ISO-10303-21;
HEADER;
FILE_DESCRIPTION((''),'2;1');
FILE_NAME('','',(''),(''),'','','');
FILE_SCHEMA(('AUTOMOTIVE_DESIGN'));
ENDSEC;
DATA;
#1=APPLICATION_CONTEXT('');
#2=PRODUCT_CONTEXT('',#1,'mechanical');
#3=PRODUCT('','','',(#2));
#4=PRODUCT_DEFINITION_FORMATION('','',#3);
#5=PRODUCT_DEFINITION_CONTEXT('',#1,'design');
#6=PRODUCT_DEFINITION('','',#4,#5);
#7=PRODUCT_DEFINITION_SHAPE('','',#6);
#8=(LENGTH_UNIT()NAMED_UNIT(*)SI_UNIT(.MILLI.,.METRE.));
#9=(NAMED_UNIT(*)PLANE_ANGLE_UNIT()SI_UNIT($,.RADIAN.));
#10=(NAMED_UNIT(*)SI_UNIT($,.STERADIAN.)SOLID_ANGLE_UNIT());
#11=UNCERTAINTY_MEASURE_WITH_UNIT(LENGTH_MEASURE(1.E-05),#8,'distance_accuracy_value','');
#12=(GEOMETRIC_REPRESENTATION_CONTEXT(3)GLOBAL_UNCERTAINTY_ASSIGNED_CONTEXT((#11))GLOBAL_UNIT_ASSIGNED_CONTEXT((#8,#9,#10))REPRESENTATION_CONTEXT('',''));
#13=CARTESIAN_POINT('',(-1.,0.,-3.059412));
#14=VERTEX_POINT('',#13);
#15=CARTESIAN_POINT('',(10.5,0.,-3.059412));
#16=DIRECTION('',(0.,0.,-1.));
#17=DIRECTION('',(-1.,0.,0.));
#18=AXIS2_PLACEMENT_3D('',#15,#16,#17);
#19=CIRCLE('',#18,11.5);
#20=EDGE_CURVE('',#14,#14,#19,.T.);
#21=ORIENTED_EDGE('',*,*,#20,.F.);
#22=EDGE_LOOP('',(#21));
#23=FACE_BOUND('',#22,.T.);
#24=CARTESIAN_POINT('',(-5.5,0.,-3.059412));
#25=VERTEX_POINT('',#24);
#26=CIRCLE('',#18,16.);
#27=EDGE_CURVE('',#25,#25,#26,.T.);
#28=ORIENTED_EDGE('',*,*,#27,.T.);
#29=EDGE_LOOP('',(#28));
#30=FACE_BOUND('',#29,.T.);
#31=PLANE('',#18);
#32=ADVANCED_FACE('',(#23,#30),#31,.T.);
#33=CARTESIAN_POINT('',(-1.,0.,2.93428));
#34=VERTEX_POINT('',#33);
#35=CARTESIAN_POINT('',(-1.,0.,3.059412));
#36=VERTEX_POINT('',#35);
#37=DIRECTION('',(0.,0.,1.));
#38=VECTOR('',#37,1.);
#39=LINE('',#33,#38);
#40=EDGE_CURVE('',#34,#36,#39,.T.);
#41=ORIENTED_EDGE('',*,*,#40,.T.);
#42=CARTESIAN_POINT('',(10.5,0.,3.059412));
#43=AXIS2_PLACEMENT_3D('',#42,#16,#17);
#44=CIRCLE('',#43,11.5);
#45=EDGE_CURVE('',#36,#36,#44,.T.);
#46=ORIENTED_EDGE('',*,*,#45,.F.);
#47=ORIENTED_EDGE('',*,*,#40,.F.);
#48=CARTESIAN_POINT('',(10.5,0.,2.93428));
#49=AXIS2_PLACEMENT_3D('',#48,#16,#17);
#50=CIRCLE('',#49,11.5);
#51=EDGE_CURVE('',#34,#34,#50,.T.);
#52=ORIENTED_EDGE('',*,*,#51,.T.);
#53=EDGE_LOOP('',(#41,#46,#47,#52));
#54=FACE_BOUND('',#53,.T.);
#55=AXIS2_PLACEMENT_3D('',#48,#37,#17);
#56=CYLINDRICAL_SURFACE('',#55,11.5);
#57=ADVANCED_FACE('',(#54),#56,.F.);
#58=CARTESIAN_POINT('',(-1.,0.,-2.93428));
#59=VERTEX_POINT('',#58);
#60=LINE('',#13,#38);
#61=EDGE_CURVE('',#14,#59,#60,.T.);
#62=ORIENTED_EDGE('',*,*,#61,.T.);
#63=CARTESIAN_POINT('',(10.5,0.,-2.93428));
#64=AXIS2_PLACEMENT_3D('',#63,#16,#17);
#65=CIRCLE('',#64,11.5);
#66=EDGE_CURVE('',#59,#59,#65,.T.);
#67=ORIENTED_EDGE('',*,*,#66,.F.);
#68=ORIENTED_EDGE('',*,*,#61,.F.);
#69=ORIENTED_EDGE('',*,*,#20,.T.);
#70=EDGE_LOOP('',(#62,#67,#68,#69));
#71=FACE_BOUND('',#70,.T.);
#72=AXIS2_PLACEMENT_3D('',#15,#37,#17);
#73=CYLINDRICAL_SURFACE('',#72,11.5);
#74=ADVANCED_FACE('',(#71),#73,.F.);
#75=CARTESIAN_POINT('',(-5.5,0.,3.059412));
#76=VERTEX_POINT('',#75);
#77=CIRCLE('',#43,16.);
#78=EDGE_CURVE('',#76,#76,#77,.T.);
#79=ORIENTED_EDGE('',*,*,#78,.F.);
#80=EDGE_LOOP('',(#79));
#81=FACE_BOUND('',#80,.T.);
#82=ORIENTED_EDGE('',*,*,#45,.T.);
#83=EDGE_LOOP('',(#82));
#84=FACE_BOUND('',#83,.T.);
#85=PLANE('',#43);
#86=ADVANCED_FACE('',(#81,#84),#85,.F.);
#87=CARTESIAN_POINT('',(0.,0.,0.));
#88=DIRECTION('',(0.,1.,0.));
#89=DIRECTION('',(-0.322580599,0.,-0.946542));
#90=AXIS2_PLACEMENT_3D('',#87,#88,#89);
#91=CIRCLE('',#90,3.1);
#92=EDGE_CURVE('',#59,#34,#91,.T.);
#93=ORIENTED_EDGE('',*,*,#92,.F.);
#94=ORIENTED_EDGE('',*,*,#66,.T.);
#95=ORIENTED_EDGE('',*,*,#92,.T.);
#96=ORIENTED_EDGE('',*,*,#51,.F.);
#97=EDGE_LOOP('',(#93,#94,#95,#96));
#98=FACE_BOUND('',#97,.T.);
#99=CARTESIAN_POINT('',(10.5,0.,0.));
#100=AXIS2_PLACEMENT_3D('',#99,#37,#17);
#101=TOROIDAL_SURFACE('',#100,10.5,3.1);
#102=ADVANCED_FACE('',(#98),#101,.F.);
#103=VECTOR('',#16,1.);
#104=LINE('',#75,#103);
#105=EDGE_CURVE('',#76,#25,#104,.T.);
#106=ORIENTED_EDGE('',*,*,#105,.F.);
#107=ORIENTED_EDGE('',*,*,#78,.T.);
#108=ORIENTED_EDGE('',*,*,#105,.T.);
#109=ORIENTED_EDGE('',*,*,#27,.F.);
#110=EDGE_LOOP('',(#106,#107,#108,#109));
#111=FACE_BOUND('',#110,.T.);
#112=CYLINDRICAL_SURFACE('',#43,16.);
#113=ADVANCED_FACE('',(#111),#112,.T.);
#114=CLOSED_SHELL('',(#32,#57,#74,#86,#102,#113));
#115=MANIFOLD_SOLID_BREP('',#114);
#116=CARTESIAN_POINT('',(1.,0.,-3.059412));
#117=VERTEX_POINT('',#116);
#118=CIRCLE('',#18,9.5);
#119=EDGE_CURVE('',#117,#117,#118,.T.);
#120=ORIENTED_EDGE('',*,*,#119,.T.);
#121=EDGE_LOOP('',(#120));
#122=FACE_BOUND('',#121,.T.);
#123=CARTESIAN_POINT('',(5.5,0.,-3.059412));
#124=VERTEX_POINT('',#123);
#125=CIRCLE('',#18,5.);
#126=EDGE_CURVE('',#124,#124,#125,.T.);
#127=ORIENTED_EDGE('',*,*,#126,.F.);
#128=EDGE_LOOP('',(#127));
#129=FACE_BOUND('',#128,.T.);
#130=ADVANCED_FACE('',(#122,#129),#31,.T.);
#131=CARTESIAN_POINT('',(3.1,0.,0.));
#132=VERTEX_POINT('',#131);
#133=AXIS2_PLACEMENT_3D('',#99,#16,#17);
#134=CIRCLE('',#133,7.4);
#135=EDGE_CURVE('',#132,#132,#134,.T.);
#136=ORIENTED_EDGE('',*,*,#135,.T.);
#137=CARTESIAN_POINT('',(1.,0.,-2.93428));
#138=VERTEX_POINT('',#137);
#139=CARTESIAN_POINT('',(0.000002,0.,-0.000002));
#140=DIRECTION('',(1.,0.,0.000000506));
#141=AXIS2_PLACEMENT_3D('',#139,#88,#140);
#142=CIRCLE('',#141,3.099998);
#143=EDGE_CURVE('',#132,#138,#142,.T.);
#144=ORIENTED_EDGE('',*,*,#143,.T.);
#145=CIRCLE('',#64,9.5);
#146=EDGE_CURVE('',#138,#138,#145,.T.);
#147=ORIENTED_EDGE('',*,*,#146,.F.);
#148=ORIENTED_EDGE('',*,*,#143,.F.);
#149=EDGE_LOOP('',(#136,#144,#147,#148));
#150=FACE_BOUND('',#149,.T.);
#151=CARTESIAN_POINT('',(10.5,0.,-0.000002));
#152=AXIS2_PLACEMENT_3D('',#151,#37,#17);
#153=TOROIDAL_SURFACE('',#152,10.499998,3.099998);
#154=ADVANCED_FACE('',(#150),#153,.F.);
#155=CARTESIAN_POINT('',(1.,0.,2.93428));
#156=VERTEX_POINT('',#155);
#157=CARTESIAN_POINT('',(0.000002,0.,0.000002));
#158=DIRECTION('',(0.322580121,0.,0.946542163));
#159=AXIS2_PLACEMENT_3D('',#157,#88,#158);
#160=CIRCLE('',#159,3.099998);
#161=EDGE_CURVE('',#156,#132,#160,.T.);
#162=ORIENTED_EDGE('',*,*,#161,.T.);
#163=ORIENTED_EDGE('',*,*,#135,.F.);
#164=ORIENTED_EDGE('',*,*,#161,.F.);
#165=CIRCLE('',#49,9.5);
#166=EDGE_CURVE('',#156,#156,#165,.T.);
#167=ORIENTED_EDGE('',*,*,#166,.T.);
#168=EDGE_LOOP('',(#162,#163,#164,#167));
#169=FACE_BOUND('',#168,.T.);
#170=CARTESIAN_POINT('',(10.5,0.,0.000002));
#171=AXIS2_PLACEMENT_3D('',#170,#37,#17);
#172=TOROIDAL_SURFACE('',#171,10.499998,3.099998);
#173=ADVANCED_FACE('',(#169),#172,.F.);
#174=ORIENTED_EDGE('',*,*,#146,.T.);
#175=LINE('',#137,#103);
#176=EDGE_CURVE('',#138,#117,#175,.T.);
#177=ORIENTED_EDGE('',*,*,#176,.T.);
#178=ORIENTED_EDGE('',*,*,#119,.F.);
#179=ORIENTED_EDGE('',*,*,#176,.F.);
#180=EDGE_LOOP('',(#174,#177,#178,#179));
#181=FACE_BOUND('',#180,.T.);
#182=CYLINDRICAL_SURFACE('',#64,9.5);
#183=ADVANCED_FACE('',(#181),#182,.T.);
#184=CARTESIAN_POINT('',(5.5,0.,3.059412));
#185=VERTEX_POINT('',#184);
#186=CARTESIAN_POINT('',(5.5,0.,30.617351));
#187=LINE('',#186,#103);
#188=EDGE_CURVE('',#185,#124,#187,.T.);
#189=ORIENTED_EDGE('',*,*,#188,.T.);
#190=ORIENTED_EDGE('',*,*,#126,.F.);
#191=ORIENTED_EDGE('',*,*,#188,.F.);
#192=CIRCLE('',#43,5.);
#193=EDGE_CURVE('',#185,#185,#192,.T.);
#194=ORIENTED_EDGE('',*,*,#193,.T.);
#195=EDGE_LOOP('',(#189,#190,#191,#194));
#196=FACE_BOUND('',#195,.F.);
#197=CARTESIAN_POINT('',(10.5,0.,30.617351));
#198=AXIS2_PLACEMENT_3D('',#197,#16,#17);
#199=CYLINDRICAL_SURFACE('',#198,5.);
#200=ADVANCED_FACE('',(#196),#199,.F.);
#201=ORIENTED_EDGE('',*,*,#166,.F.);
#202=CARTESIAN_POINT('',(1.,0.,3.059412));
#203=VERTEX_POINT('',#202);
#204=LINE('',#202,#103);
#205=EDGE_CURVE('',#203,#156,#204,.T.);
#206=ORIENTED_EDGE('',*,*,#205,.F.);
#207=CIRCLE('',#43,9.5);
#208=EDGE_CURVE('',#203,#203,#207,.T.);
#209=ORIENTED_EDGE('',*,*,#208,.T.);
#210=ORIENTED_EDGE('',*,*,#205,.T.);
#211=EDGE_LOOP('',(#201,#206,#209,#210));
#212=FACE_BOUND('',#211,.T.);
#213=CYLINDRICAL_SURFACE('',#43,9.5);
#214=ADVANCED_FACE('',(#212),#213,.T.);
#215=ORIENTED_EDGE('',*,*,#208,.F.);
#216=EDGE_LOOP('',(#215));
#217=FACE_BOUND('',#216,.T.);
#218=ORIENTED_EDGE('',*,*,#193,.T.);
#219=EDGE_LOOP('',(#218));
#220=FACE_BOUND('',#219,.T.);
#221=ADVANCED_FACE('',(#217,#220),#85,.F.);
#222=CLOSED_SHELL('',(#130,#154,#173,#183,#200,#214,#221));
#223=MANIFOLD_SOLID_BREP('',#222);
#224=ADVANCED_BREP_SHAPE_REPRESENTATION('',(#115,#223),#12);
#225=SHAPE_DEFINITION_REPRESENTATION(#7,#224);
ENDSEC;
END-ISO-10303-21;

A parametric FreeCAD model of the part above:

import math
import FreeCAD as App
import Part
import Sketcher
from FreeCAD import Vector
Q = App.Units.Quantity

doc = App.newDocument("Part")
body = doc.addObject("PartDesign::Body", "Body")

# Sketch on XZ plane
sketch1 = body.newObject("Sketcher::SketchObject", "Sketch")
sketch1.AttachmentSupport = (doc.getObject("XZ_Plane"), [""])
sketch1.MapMode = "FlatFace"
sketch1.addGeometry(Part.LineSegment(Vector(1, 3.06, 0), Vector(1, 2.93, 0)), False)
sketch1.addGeometry(Part.ArcOfCircle(Part.Circle(Vector(0, 0, 0), Vector(0, 0, 1), 3.1), math.radians(0), math.radians(71)), False)
sketch1.addGeometry(Part.ArcOfCircle(Part.Circle(Vector(0, 0, 0), Vector(0, 0, 1), 3.1), math.radians(-71), math.radians(0)), False)
sketch1.addGeometry(Part.LineSegment(Vector(1, -2.93, 0), Vector(1, -3.06, 0)), False)
sketch1.addGeometry(Part.LineSegment(Vector(1, -3.06, 0), Vector(10.5, -3.06, 0)), False)
sketch1.addGeometry(Part.LineSegment(Vector(10.5, -3.06, 0), Vector(10.5, 3.06, 0)), False)
sketch1.addGeometry(Part.LineSegment(Vector(10.5, 3.06, 0), Vector(1, 3.06, 0)), False)
sketch1.addGeometry(Part.LineSegment(Vector(10.5, 3.06, 0), Vector(10.5, -3.06, 0)), True)  # axis
sketch1.addConstraint(Sketcher.Constraint("Coincident", 0, 2, 1, 2))
sketch1.addConstraint(Sketcher.Constraint("Tangent", 1, 1, 2, 2))
sketch1.addConstraint(Sketcher.Constraint("Coincident", 2, 1, 3, 1))
sketch1.addConstraint(Sketcher.Constraint("Coincident", 3, 2, 4, 1))
sketch1.addConstraint(Sketcher.Constraint("Coincident", 4, 2, 5, 1))
sketch1.addConstraint(Sketcher.Constraint("Coincident", 5, 2, 6, 1))
sketch1.addConstraint(Sketcher.Constraint("Coincident", 6, 2, 0, 1))
sketch1.addConstraint(Sketcher.Constraint("Vertical", 0))
sketch1.addConstraint(Sketcher.Constraint("Vertical", 3))
sketch1.addConstraint(Sketcher.Constraint("Horizontal", 4))
sketch1.addConstraint(Sketcher.Constraint("Vertical", 5))
sketch1.addConstraint(Sketcher.Constraint("Horizontal", 6))
sketch1.addConstraint(Sketcher.Constraint("Vertical", 7))
sketch1.addConstraint(Sketcher.Constraint("Coincident", 1, 3, -1, 1))
sketch1.addConstraint(Sketcher.Constraint("Coincident", 7, 1, 5, 2))
sketch1.addConstraint(Sketcher.Constraint("Equal", 1, 2))
sketch1.addConstraint(Sketcher.Constraint("Symmetric", 3, 2, 6, 2, -1))
sketch1.addConstraint(Sketcher.Constraint("PointOnObject", 1, 1, -1))
sketch1.addConstraint(Sketcher.Constraint("Horizontal", 3, 2, 7, 2))
sketch1.addConstraint(Sketcher.Constraint("DistanceX", 4, 1, 4, 2, Q("9.5 mm")))
sketch1.addConstraint(Sketcher.Constraint("DistanceX", -1, 1, 0, 2, Q("1 mm")))
sketch1.addConstraint(Sketcher.Constraint("DistanceX", -1, 1, 1, 1, Q("3.1 mm")))
sketch1.addConstraint(Sketcher.Constraint("DistanceY", 0, 2, 0, 1, Q("0.125132 mm")))
revolution = body.newObject("PartDesign::Revolution", "Revolution")
revolution.Profile = sketch1
revolution.ReferenceAxis = (sketch1, ["Axis0"])
revolution.Angle = 360

# Sketch on XY plane
sketch2 = body.newObject("Sketcher::SketchObject", "Sketch001")
sketch2.AttachmentSupport = (doc.getObject("XY_Plane"), [""])
sketch2.MapMode = "FlatFace"
sketch2.AttachmentOffset = App.Placement(Vector(0, 0, 3.059412), App.Rotation())
sketch2.addGeometry(Part.Circle(Vector(10, 0, 0), Vector(0, 0, 1), 5), False)
sketch2.addConstraint(Sketcher.Constraint("PointOnObject", 0, 3, -1))
sketch2.addConstraint(Sketcher.Constraint("Diameter", 0, Q("10 mm")))
sketch2.addConstraint(Sketcher.Constraint("DistanceX", -1, 1, 0, 3, Q("10.5 mm")))
doc.recompute()
hole = body.newObject("PartDesign::Hole", "Hole")
hole.Profile = sketch2
hole.ThreadType = "None"
hole.Diameter = 10
hole.DepthType = "ThroughAll"
body2 = doc.addObject("PartDesign::Body", "Body001")

# Sketch on XZ plane
sketch3 = body2.newObject("Sketcher::SketchObject", "Sketch002")
sketch3.AttachmentSupport = (doc.getObject("XZ_Plane001"), [""])
sketch3.MapMode = "FlatFace"
sketch3.addGeometry(Part.ArcOfCircle(Part.Circle(Vector(0, 0, 0), Vector(0, 0, 1), 3.1), math.radians(109), math.radians(251)), False)
sketch3.addGeometry(Part.LineSegment(Vector(-1, 2.93, 0), Vector(-1, 3.06, 0)), False)
sketch3.addGeometry(Part.LineSegment(Vector(-1, 3.06, 0), Vector(-5.5, 3.06, 0)), False)
sketch3.addGeometry(Part.LineSegment(Vector(-5.5, 3.06, 0), Vector(-5.5, -3.06, 0)), False)
sketch3.addGeometry(Part.LineSegment(Vector(-5.5, -3.06, 0), Vector(-1, -3.06, 0)), False)
sketch3.addGeometry(Part.LineSegment(Vector(-1, -3.06, 0), Vector(-1, -2.93, 0)), False)
sketch3.addGeometry(Part.LineSegment(Vector(10.5, 3.06, 0), Vector(10.5, -3.06, 0)), True)  # axis
sketch3.addConstraint(Sketcher.Constraint("Coincident", 0, 1, 1, 1))
sketch3.addConstraint(Sketcher.Constraint("Coincident", 1, 2, 2, 1))
sketch3.addConstraint(Sketcher.Constraint("Coincident", 2, 2, 3, 1))
sketch3.addConstraint(Sketcher.Constraint("Coincident", 3, 2, 4, 1))
sketch3.addConstraint(Sketcher.Constraint("Coincident", 4, 2, 5, 1))
sketch3.addConstraint(Sketcher.Constraint("Coincident", 5, 2, 0, 2))
sketch3.addConstraint(Sketcher.Constraint("Vertical", 1))
sketch3.addConstraint(Sketcher.Constraint("Horizontal", 2))
sketch3.addConstraint(Sketcher.Constraint("Vertical", 3))
sketch3.addConstraint(Sketcher.Constraint("Horizontal", 4))
sketch3.addConstraint(Sketcher.Constraint("Vertical", 5))
sketch3.addConstraint(Sketcher.Constraint("Vertical", 6))
sketch3.addConstraint(Sketcher.Constraint("Coincident", 0, 3, -1, 1))
sketch3.addConstraint(Sketcher.Constraint("Symmetric", 1, 2, 4, 2, -1))
sketch3.addConstraint(Sketcher.Constraint("Horizontal", 2, 2, 6, 1))
sketch3.addConstraint(Sketcher.Constraint("Horizontal", 4, 2, 6, 2))
sketch3.addConstraint(Sketcher.Constraint("Radius", 0, Q("3.1 mm")))
sketch3.addConstraint(Sketcher.Constraint("DistanceX", 2, 2, 2, 1, Q("4.5 mm")))
sketch3.addConstraint(Sketcher.Constraint("DistanceX", 0, 1, -1, 1, Q("1 mm")))
sketch3.addConstraint(Sketcher.Constraint("DistanceX", -1, 1, 6, 1, Q("10.5 mm")))
sketch3.addConstraint(Sketcher.Constraint("DistanceY", 1, 1, 1, 2, Q("0.125132 mm")))
revolution2 = body2.newObject("PartDesign::Revolution", "Revolution001")
revolution2.Profile = sketch3
revolution2.ReferenceAxis = (sketch3, ["Axis0"])
revolution2.Angle = 360

doc.recompute()
